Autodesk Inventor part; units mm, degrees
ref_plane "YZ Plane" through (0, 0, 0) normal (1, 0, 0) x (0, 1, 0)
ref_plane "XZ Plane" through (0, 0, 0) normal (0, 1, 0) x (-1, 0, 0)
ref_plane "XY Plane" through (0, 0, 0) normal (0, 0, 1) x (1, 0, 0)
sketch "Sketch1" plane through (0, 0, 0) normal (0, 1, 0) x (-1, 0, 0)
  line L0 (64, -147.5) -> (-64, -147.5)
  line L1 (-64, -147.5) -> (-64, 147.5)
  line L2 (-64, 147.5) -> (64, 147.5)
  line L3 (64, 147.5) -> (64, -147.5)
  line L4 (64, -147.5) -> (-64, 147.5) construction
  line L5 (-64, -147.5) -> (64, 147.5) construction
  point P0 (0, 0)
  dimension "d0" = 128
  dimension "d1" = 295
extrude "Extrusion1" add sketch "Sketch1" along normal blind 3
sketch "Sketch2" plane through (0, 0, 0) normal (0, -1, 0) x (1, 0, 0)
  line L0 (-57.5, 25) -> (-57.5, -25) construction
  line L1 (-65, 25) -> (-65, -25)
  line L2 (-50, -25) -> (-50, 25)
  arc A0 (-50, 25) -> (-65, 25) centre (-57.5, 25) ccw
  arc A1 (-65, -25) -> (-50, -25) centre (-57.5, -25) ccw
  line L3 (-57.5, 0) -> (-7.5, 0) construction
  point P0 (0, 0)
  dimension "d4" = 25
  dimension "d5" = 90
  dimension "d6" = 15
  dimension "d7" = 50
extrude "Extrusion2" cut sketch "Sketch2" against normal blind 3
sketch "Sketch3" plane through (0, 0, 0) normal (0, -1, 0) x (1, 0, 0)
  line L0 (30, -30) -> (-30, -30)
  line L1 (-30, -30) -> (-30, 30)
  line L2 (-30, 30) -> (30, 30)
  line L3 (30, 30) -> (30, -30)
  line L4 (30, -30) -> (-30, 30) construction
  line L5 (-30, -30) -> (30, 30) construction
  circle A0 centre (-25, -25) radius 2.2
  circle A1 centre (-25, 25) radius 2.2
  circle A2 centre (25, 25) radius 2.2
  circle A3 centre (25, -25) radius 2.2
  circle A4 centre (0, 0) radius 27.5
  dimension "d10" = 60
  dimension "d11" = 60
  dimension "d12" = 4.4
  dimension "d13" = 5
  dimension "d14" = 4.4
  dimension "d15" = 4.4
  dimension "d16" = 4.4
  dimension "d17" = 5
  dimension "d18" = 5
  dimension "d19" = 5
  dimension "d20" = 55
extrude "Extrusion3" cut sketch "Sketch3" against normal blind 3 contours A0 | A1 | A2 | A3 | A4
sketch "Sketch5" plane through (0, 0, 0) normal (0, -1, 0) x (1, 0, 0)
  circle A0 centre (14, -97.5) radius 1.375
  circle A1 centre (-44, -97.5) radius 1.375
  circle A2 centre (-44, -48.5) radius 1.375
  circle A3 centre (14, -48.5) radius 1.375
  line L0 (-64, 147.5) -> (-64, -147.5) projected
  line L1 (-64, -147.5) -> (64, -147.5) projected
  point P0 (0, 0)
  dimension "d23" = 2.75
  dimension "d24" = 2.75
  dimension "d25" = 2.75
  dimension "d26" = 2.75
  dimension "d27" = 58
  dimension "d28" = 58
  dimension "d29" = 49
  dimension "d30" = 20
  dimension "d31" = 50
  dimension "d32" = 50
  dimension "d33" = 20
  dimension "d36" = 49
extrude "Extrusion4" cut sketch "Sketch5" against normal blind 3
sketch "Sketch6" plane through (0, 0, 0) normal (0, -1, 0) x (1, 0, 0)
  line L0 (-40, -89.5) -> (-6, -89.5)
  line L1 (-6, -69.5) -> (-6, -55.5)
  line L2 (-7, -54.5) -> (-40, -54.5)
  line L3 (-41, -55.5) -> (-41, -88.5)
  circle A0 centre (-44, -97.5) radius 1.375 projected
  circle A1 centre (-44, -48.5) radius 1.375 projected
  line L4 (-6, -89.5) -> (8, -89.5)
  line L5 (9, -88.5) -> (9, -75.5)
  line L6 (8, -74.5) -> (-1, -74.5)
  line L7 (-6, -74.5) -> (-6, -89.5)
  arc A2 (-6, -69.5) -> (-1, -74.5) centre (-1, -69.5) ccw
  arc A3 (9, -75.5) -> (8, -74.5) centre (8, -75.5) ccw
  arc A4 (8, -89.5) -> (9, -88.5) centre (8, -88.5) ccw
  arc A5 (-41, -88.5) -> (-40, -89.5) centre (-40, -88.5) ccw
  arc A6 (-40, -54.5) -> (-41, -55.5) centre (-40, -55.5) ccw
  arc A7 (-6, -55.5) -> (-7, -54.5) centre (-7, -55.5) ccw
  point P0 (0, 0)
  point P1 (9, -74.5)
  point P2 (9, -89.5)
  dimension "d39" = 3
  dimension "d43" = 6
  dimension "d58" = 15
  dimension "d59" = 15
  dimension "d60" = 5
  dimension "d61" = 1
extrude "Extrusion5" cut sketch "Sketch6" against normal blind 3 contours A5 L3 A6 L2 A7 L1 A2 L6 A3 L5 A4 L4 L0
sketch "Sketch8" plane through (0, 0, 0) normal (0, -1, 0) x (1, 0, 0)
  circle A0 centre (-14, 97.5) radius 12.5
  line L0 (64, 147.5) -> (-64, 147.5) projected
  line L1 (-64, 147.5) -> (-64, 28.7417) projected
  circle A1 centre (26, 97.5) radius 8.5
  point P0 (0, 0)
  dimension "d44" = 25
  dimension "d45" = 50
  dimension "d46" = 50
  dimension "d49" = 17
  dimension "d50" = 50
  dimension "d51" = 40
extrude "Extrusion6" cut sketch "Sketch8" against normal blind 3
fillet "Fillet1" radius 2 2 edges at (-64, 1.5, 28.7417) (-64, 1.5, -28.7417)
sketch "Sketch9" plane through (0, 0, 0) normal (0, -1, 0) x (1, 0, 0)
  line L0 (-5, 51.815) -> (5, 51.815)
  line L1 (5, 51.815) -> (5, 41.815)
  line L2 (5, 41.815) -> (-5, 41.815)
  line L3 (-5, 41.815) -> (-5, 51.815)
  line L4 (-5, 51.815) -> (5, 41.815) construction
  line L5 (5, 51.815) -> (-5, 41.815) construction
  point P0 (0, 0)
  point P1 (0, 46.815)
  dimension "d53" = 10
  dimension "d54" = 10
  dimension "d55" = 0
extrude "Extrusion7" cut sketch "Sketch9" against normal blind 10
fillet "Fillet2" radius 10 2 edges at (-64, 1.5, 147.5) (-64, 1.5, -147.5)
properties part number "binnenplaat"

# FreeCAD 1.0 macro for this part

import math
import FreeCAD as App
import Part
import Sketcher

V = App.Vector
Q = App.Units.Quantity


def edges_at(feature, points):
    """Names of the edges that pass closest to the given points."""
    edges = feature.Shape.Edges
    near = lambda p: min(range(len(edges)), key=lambda i: edges[i].distToShape(Part.Vertex(*p))[0])
    return sorted({f"Edge{near(p) + 1}" for p in points})

doc = App.newDocument("Part")
body = doc.addObject("PartDesign::Body", "Body")

# Sketch on XZ plane
sketch1 = body.newObject("Sketcher::SketchObject", "Sketch")
sketch1.AttachmentSupport = (doc.getObject("XZ_Plane"), [""])
sketch1.MapMode = "FlatFace"
sketch1.addGeometry([
    Part.LineSegment(V(64, -147.5, 0), V(-64, -147.5, 0)),
    Part.LineSegment(V(-64, -147.5, 0), V(-64, 147.5, 0)),
    Part.LineSegment(V(-64, 147.5, 0), V(64, 147.5, 0)),
    Part.LineSegment(V(64, 147.5, 0), V(64, -147.5, 0)),
], False)
sketch1.addConstraint([
    Sketcher.Constraint("Coincident", 0, 2, 1, 1),
    Sketcher.Constraint("Coincident", 1, 2, 2, 1),
    Sketcher.Constraint("Coincident", 2, 2, 3, 1),
    Sketcher.Constraint("Coincident", 3, 2, 0, 1),
    Sketcher.Constraint("Horizontal", 0),
    Sketcher.Constraint("Vertical", 1),
    Sketcher.Constraint("Horizontal", 2),
    Sketcher.Constraint("Vertical", 3),
    Sketcher.Constraint("Symmetric", 0, 2, 2, 2, -1, 1),
    Sketcher.Constraint("DistanceX", 0, 2, 0, 1, Q("128 mm")),
    Sketcher.Constraint("DistanceY", 1, 1, 1, 2, Q("295 mm")),
])
pad1 = body.newObject("PartDesign::Pad", "Pad")
pad1.Profile = sketch1
pad1.Length = 3
pad1.Reversed = True

# Sketch on XZ plane
sketch2 = body.newObject("Sketcher::SketchObject", "Sketch001")
sketch2.AttachmentSupport = (doc.getObject("XZ_Plane"), [""])
sketch2.MapMode = "FlatFace"
sketch2.addGeometry([
    Part.ArcOfCircle(Part.Circle(V(-57.5, 25, 0), V(0, 0, 1), 7.5), math.radians(0), math.radians(180)),
    Part.LineSegment(V(-65, 25, 0), V(-65, -25, 0)),
    Part.ArcOfCircle(Part.Circle(V(-57.5, -25, 0), V(0, 0, 1), 7.5), math.radians(180), math.radians(360)),
    Part.LineSegment(V(-50, -25, 0), V(-50, 25, 0)),
], False)
sketch2.addConstraint([
    Sketcher.Constraint("Tangent", 0, 2, 1, 1),
    Sketcher.Constraint("Tangent", 1, 2, 2, 1),
    Sketcher.Constraint("Tangent", 2, 2, 3, 1),
    Sketcher.Constraint("Tangent", 3, 2, 0, 1),
    Sketcher.Constraint("Vertical", 1),
    Sketcher.Constraint("Vertical", 3),
    Sketcher.Constraint("Radius", 0, Q("7.5 mm")),
    Sketcher.Constraint("DistanceY", 1, 2, 1, 1, Q("50 mm")),
    Sketcher.Constraint("DistanceY", -1, 1, 0, 3, Q("25 mm")),
    Sketcher.Constraint("DistanceX", 2, 2, -1, 1, Q("50 mm")),
])
pocket1 = body.newObject("PartDesign::Pocket", "Pocket")
pocket1.Profile = sketch2
pocket1.Length = 3

# Sketch on XZ plane
sketch3 = body.newObject("Sketcher::SketchObject", "Sketch002")
sketch3.AttachmentSupport = (doc.getObject("XZ_Plane"), [""])
sketch3.MapMode = "FlatFace"
sketch3.addGeometry([
    Part.Circle(V(-25, -25, 0), V(0, 0, 1), 2.2),  # 0
    Part.Circle(V(-25, 25, 0), V(0, 0, 1), 2.2),  # 1
    Part.Circle(V(25, 25, 0), V(0, 0, 1), 2.2),  # 2
    Part.Circle(V(25, -25, 0), V(0, 0, 1), 2.2),  # 3
    Part.Circle(V(0, 0, 0), V(0, 0, 1), 27.5),  # 4
], False)
sketch3.addConstraint([
    Sketcher.Constraint("Coincident", 4, 3, -1, 1),
    Sketcher.Constraint("Equal", 0, 1),
    Sketcher.Constraint("Equal", 1, 2),
    Sketcher.Constraint("Equal", 2, 3),
    Sketcher.Constraint("Symmetric", 0, 3, 2, 3, -1, 1),
    Sketcher.Constraint("Symmetric", 1, 3, 3, 3, -1, 1),
    Sketcher.Constraint("Symmetric", 1, 3, 2, 3, -2),
    Sketcher.Constraint("Diameter", 4, Q("55 mm")),
    Sketcher.Constraint("Diameter", 0, Q("4.4 mm")),
    Sketcher.Constraint("DistanceX", 0, 3, -1, 1, Q("25 mm")),
    Sketcher.Constraint("DistanceY", 0, 3, -1, 1, Q("25 mm")),
])
pocket2 = body.newObject("PartDesign::Pocket", "Pocket001")
pocket2.Profile = sketch3
pocket2.Length = 3

# Sketch on XZ plane
sketch4 = body.newObject("Sketcher::SketchObject", "Sketch003")
sketch4.AttachmentSupport = (doc.getObject("XZ_Plane"), [""])
sketch4.MapMode = "FlatFace"
sketch4.addGeometry([
    Part.Circle(V(14, -97.5, 0), V(0, 0, 1), 1.375),
    Part.Circle(V(-44, -97.5, 0), V(0, 0, 1), 1.375),
    Part.Circle(V(-44, -48.5, 0), V(0, 0, 1), 1.375),
    Part.Circle(V(14, -48.5, 0), V(0, 0, 1), 1.375),
], False)
sketch4.addConstraint([
    Sketcher.Constraint("Equal", 0, 1),
    Sketcher.Constraint("Equal", 1, 2),
    Sketcher.Constraint("Equal", 2, 3),
    Sketcher.Constraint("Horizontal", 0, 3, 1, 3),
    Sketcher.Constraint("Horizontal", 2, 3, 3, 3),
    Sketcher.Constraint("Vertical", 1, 3, 2, 3),
    Sketcher.Constraint("Vertical", 0, 3, 3, 3),
    Sketcher.Constraint("Diameter", 0, Q("2.75 mm")),
    Sketcher.Constraint("DistanceX", 1, 3, 0, 3, Q("58 mm")),
    Sketcher.Constraint("DistanceY", 1, 3, 2, 3, Q("49 mm")),
    Sketcher.Constraint("DistanceX", -1, 1, 0, 3, Q("14 mm")),
    Sketcher.Constraint("DistanceY", 0, 3, -1, 1, Q("97.5 mm")),
])
pocket3 = body.newObject("PartDesign::Pocket", "Pocket002")
pocket3.Profile = sketch4
pocket3.Length = 3

# Sketch on XZ plane
sketch5 = body.newObject("Sketcher::SketchObject", "Sketch004")
sketch5.AttachmentSupport = (doc.getObject("XZ_Plane"), [""])
sketch5.MapMode = "FlatFace"
sketch5.addGeometry([
    Part.ArcOfCircle(Part.Circle(V(-40, -88.5, 0), V(0, 0, 1), 1), math.radians(180), math.radians(270)),  # 0
    Part.LineSegment(V(-40, -89.5, 0), V(8, -89.5, 0)),  # 1
    Part.ArcOfCircle(Part.Circle(V(8, -88.5, 0), V(0, 0, 1), 1), math.radians(-90), math.radians(0)),  # 2
    Part.LineSegment(V(9, -88.5, 0), V(9, -75.5, 0)),  # 3
    Part.ArcOfCircle(Part.Circle(V(8, -75.5, 0), V(0, 0, 1), 1), math.radians(0), math.radians(90)),  # 4
    Part.LineSegment(V(8, -74.5, 0), V(-1, -74.5, 0)),  # 5
    Part.ArcOfCircle(Part.Circle(V(-1, -69.5, 0), V(0, 0, 1), 5), math.radians(180), math.radians(270)),  # 6
    Part.LineSegment(V(-6, -69.5, 0), V(-6, -55.5, 0)),  # 7
    Part.ArcOfCircle(Part.Circle(V(-7, -55.5, 0), V(0, 0, 1), 1), math.radians(0), math.radians(90)),  # 8
    Part.LineSegment(V(-7, -54.5, 0), V(-40, -54.5, 0)),  # 9
    Part.ArcOfCircle(Part.Circle(V(-40, -55.5, 0), V(0, 0, 1), 1), math.radians(90), math.radians(180)),  # 10
    Part.LineSegment(V(-41, -55.5, 0), V(-41, -88.5, 0)),  # 11
], False)
sketch5.addConstraint([
    Sketcher.Constraint("Tangent", 0, 2, 1, 1),
    Sketcher.Constraint("Tangent", 1, 2, 2, 1),
    Sketcher.Constraint("Tangent", 2, 2, 3, 1),
    Sketcher.Constraint("Tangent", 3, 2, 4, 1),
    Sketcher.Constraint("Tangent", 4, 2, 5, 1),
    Sketcher.Constraint("Tangent", 5, 2, 6, 2),
    Sketcher.Constraint("Tangent", 6, 1, 7, 1),
    Sketcher.Constraint("Tangent", 7, 2, 8, 1),
    Sketcher.Constraint("Tangent", 8, 2, 9, 1),
    Sketcher.Constraint("Tangent", 9, 2, 10, 1),
    Sketcher.Constraint("Tangent", 10, 2, 11, 1),
    Sketcher.Constraint("Tangent", 11, 2, 0, 1),
    Sketcher.Constraint("Horizontal", 1),
    Sketcher.Constraint("Vertical", 3),
    Sketcher.Constraint("Horizontal", 5),
    Sketcher.Constraint("Vertical", 7),
    Sketcher.Constraint("Horizontal", 9),
    Sketcher.Constraint("Vertical", 11),
    Sketcher.Constraint("Equal", 0, 2),
    Sketcher.Constraint("Equal", 2, 4),
    Sketcher.Constraint("Equal", 4, 8),
    Sketcher.Constraint("Equal", 8, 10),
    Sketcher.Constraint("Equal", 9, 11),
    Sketcher.Constraint("Radius", 0, Q("1 mm")),
    Sketcher.Constraint("Radius", 6, Q("5 mm")),
    Sketcher.Constraint("DistanceX", 6, 3, -1, 1, Q("1 mm")),
    Sketcher.Constraint("DistanceX", 8, 3, 4, 3, Q("15 mm")),
    Sketcher.Constraint("DistanceY", 6, 1, 8, 2, Q("15 mm")),
    Sketcher.Constraint("DistanceX", 1, 1, 1, 2, Q("48 mm")),
    Sketcher.Constraint("DistanceY", 0, 3, -1, 1, Q("88.5 mm")),
])
pocket4 = body.newObject("PartDesign::Pocket", "Pocket003")
pocket4.Profile = sketch5
pocket4.Length = 3

# Sketch on XZ plane
sketch6 = body.newObject("Sketcher::SketchObject", "Sketch005")
sketch6.AttachmentSupport = (doc.getObject("XZ_Plane"), [""])
sketch6.MapMode = "FlatFace"
sketch6.addGeometry([
    Part.Circle(V(-14, 97.5, 0), V(0, 0, 1), 12.5),
    Part.Circle(V(26, 97.5, 0), V(0, 0, 1), 8.5),
], False)
sketch6.addConstraint([
    Sketcher.Constraint("Horizontal", 0, 3, 1, 3),
    Sketcher.Constraint("Diameter", 0, Q("25 mm")),
    Sketcher.Constraint("Diameter", 1, Q("17 mm")),
    Sketcher.Constraint("DistanceX", 0, 3, 1, 3, Q("40 mm")),
    Sketcher.Constraint("DistanceX", 0, 3, -1, 1, Q("14 mm")),
    Sketcher.Constraint("DistanceY", -1, 1, 0, 3, Q("97.5 mm")),
])
pocket5 = body.newObject("PartDesign::Pocket", "Pocket004")
pocket5.Profile = sketch6
pocket5.Length = 3
doc.recompute()

fillet = body.newObject("PartDesign::Fillet", "Fillet")
fillet.Base = (pocket5, edges_at(pocket5, [(-64, 1.5, 28.742), (-64, 1.5, -28.742)]))
fillet.Radius = 2

# Sketch on XZ plane
sketch7 = body.newObject("Sketcher::SketchObject", "Sketch006")
sketch7.AttachmentSupport = (doc.getObject("XZ_Plane"), [""])
sketch7.MapMode = "FlatFace"
sketch7.addGeometry([
    Part.LineSegment(V(5, 51.815, 0), V(-5, 51.815, 0)),
    Part.LineSegment(V(-5, 51.815, 0), V(-5, 41.815, 0)),
    Part.LineSegment(V(-5, 41.815, 0), V(5, 41.815, 0)),
    Part.LineSegment(V(5, 41.815, 0), V(5, 51.815, 0)),
], False)
sketch7.addConstraint([
    Sketcher.Constraint("Coincident", 0, 2, 1, 1),
    Sketcher.Constraint("Coincident", 1, 2, 2, 1),
    Sketcher.Constraint("Coincident", 2, 2, 3, 1),
    Sketcher.Constraint("Coincident", 3, 2, 0, 1),
    Sketcher.Constraint("Horizontal", 0),
    Sketcher.Constraint("Vertical", 1),
    Sketcher.Constraint("Horizontal", 2),
    Sketcher.Constraint("Vertical", 3),
    Sketcher.Constraint("Equal", 2, 1),
    Sketcher.Constraint("DistanceX", 0, 2, 0, 1, Q("10 mm")),
    Sketcher.Constraint("DistanceX", 0, 2, -1, 1, Q("5 mm")),
    Sketcher.Constraint("DistanceY", -1, 1, 0, 2, Q("51.815 mm")),
])
pocket6 = body.newObject("PartDesign::Pocket", "Pocket005")
pocket6.Profile = sketch7
pocket6.Length = 10
doc.recompute()

fillet2 = body.newObject("PartDesign::Fillet", "Fillet001")
fillet2.Base = (pocket6, edges_at(pocket6, [(-64, 1.5, 147.5), (-64, 1.5, -147.5)]))
fillet2.Radius = 10

doc.recompute()
